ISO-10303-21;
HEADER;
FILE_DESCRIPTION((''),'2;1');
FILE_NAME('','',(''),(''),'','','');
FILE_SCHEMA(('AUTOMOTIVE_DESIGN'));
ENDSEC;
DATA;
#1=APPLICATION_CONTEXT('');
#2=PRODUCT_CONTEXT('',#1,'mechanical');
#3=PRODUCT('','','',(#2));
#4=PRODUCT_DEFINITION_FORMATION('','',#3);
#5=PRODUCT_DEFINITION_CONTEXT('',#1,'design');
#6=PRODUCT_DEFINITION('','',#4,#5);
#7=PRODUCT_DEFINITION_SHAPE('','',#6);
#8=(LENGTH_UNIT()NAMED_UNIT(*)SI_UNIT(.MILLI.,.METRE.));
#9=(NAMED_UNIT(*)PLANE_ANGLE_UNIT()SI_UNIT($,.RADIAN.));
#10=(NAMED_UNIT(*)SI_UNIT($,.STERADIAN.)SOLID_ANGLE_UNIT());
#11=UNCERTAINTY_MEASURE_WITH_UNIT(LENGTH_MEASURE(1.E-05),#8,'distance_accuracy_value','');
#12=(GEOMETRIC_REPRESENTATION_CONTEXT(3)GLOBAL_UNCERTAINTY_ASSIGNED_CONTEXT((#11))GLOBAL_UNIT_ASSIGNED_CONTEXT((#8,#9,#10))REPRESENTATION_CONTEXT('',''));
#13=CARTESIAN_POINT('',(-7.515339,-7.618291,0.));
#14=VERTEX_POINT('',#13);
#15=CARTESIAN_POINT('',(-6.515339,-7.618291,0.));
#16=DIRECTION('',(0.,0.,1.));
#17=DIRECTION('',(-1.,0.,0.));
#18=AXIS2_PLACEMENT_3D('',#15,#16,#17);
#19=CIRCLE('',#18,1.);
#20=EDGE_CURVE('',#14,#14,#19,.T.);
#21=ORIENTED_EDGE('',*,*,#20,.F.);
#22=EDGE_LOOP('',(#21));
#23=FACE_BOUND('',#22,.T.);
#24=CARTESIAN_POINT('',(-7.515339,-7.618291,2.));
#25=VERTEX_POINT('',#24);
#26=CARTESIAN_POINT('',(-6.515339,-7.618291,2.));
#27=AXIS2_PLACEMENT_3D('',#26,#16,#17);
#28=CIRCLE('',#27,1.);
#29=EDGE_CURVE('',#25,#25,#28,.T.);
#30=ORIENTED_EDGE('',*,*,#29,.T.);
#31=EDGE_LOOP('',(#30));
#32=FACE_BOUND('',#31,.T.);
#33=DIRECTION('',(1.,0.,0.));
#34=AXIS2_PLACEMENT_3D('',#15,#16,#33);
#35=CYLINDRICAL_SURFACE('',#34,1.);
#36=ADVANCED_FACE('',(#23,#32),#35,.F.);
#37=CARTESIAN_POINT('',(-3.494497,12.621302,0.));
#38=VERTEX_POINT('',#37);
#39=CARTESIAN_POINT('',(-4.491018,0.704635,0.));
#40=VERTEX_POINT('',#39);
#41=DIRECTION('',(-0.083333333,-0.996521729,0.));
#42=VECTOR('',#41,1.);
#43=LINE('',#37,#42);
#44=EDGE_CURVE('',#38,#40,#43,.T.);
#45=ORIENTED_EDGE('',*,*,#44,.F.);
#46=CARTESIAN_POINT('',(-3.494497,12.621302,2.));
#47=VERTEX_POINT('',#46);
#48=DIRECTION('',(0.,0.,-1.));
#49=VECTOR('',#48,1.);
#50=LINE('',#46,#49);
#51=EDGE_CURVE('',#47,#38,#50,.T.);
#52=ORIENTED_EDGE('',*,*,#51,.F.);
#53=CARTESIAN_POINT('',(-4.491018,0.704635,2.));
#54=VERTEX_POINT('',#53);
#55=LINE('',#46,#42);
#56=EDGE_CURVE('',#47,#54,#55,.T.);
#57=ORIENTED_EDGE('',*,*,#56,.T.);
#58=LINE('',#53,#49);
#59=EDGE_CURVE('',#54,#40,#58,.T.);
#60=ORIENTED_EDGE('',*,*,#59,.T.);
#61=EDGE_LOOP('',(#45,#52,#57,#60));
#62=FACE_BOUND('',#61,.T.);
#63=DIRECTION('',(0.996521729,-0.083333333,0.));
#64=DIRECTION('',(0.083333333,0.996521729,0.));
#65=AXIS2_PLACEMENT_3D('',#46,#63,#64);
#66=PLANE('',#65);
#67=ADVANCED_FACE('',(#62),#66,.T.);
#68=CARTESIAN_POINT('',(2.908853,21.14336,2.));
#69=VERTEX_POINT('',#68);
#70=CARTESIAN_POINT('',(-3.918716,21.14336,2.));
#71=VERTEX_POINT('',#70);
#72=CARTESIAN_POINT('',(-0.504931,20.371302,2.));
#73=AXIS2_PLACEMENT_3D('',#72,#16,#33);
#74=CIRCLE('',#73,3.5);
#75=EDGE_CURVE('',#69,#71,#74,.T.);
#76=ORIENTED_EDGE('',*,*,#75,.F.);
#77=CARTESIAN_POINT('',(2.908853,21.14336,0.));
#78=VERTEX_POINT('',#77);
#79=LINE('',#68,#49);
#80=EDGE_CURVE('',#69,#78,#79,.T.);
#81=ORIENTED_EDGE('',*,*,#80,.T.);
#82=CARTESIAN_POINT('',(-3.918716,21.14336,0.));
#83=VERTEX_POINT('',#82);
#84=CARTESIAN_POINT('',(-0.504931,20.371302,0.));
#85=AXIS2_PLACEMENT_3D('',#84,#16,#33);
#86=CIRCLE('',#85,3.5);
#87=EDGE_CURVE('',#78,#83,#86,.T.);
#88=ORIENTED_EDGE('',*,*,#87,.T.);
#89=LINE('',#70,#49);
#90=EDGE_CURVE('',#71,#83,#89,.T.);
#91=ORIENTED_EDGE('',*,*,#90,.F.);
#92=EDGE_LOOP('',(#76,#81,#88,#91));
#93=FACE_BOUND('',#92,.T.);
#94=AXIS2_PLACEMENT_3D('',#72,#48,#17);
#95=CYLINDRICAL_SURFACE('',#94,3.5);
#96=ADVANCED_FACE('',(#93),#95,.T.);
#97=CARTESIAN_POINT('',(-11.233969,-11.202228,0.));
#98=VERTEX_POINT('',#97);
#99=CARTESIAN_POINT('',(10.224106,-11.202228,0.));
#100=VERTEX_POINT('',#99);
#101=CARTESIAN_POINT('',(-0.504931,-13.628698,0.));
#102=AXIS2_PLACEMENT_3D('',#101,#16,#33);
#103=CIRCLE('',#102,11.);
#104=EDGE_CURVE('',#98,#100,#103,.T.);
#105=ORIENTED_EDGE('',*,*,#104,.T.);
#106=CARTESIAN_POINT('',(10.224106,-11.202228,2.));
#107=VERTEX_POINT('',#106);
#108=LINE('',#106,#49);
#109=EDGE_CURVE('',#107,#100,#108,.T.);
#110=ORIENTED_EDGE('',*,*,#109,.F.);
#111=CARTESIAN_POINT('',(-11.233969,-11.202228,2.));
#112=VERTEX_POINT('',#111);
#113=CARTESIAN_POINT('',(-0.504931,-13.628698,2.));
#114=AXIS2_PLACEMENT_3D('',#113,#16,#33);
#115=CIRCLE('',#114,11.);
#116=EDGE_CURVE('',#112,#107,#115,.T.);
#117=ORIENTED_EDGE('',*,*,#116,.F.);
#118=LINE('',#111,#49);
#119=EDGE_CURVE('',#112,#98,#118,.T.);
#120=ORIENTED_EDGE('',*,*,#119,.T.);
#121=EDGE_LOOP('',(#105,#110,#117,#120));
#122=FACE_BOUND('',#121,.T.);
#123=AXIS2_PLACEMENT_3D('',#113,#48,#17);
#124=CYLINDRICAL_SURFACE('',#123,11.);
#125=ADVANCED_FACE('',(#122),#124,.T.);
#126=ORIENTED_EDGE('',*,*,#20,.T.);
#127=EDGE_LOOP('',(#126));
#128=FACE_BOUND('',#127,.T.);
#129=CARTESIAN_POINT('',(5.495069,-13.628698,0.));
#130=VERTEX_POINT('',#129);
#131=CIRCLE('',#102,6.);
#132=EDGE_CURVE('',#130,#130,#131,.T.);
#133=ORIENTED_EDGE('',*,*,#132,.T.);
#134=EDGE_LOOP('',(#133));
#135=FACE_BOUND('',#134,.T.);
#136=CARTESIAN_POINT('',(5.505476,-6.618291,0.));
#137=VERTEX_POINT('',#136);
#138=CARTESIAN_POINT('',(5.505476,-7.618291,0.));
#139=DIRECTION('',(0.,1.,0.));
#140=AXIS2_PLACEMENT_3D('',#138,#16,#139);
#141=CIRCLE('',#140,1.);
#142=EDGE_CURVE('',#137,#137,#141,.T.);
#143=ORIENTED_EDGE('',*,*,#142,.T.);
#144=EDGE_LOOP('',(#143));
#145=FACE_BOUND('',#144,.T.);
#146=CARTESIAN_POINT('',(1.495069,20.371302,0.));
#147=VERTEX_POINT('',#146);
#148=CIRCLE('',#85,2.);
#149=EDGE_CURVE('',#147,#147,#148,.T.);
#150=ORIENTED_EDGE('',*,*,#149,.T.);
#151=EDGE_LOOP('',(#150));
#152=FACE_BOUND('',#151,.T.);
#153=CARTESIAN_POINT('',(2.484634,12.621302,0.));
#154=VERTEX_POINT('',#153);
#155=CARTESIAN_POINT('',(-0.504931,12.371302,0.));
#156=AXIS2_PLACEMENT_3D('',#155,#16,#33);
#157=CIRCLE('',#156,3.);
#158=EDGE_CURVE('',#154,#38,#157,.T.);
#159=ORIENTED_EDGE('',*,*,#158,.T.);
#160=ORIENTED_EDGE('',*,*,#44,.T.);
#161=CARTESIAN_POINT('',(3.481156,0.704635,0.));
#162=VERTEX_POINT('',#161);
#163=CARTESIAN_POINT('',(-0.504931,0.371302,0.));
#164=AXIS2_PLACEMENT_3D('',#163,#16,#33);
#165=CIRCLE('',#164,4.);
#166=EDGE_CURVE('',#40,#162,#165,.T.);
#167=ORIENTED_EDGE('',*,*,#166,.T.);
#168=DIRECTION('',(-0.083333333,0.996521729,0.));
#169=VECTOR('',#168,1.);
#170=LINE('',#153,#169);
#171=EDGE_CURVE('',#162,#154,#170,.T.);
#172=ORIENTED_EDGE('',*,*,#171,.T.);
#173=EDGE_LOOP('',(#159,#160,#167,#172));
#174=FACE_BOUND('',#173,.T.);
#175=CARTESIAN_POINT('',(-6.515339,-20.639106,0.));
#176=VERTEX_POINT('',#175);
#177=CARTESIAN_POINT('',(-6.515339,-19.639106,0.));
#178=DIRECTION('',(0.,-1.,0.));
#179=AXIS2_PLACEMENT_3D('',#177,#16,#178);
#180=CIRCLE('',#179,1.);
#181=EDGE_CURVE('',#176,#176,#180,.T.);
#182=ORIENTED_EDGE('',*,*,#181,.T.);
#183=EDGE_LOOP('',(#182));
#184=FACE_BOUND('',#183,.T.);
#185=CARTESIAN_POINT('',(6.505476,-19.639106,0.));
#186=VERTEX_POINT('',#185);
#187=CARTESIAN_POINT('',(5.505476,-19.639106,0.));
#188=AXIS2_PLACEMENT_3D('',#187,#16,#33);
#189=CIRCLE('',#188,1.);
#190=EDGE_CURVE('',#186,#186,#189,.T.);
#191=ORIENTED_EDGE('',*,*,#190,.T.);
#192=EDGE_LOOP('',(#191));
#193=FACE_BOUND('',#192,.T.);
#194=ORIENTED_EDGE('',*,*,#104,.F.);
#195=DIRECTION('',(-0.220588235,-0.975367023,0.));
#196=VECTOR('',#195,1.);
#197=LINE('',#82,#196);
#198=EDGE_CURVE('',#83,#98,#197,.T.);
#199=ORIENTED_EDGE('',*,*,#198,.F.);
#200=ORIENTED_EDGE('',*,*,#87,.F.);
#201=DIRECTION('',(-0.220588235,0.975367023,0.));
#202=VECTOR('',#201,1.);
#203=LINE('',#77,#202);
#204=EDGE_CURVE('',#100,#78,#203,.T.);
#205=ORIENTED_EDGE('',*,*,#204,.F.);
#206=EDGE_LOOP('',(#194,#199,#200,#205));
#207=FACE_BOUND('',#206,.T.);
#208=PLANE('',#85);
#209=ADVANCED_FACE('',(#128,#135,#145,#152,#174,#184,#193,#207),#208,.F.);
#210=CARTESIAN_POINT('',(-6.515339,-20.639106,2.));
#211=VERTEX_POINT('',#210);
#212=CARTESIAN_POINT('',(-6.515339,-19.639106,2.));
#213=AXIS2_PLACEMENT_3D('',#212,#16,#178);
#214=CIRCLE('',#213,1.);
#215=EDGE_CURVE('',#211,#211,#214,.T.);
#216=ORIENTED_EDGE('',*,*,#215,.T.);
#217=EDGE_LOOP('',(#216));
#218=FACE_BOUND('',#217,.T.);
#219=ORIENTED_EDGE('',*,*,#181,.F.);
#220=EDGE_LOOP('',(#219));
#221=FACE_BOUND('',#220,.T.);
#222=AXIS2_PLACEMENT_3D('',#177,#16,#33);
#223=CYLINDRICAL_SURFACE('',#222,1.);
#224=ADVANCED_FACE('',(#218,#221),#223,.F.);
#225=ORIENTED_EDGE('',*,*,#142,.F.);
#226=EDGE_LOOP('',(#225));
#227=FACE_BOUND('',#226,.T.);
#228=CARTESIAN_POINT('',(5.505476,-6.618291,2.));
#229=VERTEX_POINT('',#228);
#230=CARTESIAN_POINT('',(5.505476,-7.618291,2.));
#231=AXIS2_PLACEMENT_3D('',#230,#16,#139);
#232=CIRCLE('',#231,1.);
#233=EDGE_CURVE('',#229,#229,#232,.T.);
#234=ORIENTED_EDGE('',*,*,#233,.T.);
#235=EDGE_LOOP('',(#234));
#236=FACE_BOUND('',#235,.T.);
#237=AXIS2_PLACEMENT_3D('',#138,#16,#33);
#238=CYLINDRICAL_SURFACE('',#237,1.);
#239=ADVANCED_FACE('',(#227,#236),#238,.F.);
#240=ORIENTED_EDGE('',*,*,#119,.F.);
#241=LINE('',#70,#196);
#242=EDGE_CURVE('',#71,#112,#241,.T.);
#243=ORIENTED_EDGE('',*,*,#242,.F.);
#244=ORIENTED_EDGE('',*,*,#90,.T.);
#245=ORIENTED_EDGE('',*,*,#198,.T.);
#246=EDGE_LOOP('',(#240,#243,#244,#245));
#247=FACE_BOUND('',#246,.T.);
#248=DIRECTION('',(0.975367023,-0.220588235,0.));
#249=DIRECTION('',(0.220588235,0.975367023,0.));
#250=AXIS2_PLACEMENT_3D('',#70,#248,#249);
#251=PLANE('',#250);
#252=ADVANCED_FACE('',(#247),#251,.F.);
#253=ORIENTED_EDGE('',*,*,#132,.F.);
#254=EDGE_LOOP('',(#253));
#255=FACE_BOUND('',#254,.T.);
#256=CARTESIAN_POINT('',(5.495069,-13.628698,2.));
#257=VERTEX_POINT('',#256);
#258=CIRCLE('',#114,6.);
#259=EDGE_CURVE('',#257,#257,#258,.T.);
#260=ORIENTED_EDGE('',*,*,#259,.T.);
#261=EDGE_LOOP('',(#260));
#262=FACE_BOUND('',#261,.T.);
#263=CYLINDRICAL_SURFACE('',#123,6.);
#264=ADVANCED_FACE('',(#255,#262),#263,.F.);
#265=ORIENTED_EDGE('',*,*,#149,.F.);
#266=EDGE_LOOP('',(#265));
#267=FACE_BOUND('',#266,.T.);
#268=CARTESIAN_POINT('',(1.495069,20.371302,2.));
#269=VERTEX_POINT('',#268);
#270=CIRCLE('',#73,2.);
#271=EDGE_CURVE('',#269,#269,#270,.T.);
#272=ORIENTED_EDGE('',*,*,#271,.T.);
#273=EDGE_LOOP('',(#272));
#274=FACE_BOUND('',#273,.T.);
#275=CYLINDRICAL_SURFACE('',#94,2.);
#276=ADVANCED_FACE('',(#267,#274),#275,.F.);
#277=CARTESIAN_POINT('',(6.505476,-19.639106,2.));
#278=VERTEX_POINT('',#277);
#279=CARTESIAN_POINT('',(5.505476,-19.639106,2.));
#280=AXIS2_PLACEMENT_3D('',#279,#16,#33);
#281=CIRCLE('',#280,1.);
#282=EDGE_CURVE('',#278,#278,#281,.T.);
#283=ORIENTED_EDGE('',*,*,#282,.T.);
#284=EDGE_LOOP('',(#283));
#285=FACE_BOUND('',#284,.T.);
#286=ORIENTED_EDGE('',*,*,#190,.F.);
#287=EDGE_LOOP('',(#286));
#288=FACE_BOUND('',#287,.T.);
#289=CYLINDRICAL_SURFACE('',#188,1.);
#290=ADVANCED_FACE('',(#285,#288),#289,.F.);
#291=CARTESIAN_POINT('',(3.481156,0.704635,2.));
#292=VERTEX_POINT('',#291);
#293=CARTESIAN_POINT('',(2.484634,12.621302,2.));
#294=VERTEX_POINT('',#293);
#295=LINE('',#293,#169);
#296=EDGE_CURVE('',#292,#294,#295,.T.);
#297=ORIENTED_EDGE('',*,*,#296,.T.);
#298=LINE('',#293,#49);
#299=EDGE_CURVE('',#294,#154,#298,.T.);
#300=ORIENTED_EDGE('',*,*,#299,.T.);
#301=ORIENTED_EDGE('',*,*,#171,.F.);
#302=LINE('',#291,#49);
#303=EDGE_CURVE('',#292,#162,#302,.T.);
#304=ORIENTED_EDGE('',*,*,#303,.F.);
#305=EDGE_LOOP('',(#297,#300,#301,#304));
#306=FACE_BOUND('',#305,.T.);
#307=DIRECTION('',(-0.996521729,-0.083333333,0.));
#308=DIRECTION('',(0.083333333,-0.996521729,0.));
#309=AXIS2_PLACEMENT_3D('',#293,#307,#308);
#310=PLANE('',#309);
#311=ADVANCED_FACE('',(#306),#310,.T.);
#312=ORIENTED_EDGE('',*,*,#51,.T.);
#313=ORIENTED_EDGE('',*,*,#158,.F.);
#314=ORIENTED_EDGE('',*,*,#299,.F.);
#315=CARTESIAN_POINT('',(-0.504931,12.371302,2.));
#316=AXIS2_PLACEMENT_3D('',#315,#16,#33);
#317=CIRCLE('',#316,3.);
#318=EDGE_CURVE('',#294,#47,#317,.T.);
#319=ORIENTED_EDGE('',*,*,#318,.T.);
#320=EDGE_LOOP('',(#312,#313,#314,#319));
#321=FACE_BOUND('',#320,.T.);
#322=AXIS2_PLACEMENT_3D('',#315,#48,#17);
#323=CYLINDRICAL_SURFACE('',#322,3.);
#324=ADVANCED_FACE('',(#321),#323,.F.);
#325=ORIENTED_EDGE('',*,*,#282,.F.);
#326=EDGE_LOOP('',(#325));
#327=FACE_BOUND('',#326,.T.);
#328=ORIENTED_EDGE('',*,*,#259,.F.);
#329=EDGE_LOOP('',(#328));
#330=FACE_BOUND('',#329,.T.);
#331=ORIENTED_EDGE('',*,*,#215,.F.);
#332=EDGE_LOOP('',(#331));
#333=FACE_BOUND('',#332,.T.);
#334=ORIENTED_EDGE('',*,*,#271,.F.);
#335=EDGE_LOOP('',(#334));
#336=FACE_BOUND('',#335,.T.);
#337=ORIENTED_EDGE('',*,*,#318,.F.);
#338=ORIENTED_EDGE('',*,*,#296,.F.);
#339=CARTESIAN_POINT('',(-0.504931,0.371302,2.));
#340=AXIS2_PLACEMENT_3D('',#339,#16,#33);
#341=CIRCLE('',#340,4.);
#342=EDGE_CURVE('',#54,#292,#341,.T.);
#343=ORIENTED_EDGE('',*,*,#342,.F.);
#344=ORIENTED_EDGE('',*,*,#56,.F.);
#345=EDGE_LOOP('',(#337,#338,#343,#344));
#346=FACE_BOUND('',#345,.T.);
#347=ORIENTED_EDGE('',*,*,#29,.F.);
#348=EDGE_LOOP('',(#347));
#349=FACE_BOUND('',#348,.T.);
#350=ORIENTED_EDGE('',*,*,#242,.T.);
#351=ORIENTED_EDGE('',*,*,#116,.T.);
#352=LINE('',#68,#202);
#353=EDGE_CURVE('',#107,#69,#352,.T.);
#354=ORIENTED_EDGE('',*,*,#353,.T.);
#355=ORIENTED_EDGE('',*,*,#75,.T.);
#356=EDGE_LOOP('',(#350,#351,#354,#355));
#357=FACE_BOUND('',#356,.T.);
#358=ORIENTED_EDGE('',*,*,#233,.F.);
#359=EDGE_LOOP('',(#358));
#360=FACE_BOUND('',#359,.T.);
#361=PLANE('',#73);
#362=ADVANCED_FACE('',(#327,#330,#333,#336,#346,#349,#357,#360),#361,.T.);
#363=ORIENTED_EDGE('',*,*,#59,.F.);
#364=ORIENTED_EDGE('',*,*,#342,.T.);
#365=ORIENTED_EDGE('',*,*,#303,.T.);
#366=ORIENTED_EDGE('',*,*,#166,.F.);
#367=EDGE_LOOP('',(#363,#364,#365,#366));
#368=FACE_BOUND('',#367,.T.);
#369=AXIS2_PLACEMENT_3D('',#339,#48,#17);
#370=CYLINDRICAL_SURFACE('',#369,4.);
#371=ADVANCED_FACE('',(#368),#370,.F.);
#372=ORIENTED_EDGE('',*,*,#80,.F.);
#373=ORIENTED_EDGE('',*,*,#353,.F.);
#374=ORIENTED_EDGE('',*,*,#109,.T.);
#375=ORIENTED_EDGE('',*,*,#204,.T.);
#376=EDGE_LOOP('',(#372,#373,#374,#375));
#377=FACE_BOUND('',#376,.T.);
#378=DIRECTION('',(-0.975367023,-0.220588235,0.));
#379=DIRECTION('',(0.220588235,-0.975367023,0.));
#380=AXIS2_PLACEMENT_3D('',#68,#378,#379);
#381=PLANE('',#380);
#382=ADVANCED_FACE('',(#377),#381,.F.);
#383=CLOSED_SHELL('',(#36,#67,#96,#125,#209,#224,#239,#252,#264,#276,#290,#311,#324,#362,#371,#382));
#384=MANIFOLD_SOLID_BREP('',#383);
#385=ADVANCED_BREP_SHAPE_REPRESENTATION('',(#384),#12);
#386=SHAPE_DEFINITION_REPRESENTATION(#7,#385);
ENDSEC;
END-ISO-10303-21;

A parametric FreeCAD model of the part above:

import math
import FreeCAD as App
import Part
import Sketcher
from FreeCAD import Vector
Q = App.Units.Quantity

doc = App.newDocument("Part")
params = doc.addObject("Spreadsheet::Sheet", "Params")
for row, (alias, value) in enumerate([
    ("sketch1_diameter", "12 mm"),
    ("sketch1_diameter2", "4 mm"),
    ("sketch1_radius", "11 mm"),
    ("sketch1_radius2", "3 mm"),
    ("sketch1_radius3", "4 mm"),
    ("pad1_length", "2 mm"),
    ("sketch2_diameter", "2 mm"),
], start=1):
    params.set(f"A{row}", alias)
    params.set(f"B{row}", "=" + value)
    params.setAlias(f"B{row}", alias)

body = doc.addObject("PartDesign::Body", "Body")

sketch1 = body.newObject("Sketcher::SketchObject", "Sketch")
sketch1.AttachmentSupport = (doc.getObject("XY_Plane"), [""])
sketch1.MapMode = "FlatFace"
sketch1.addGeometry(Part.LineSegment(Vector(-3.9, 21.1, 0), Vector(-11.2, -11.2, 0)), False)
sketch1.addGeometry(Part.ArcOfCircle(Part.Circle(Vector(-0.5, -13.6, 0), Vector(0, 0, 1), 11), math.radians(167), math.radians(373)), False)
sketch1.addGeometry(Part.LineSegment(Vector(10.2, -11.2, 0), Vector(2.9, 21.1, 0)), False)
sketch1.addGeometry(Part.ArcOfCircle(Part.Circle(Vector(-0.5, 20.4, 0), Vector(0, 0, 1), 3.5), math.radians(13), math.radians(167)), False)
sketch1.addGeometry(Part.Circle(Vector(-0.5, -13.6, 0), Vector(0, 0, 1), 6), False)
sketch1.addGeometry(Part.LineSegment(Vector(-4.5, 0.7, 0), Vector(-3.5, 12.6, 0)), False)
sketch1.addGeometry(Part.ArcOfCircle(Part.Circle(Vector(-0.5, 12.4, 0), Vector(0, 0, 1), 3), math.radians(5), math.radians(175)), False)
sketch1.addGeometry(Part.LineSegment(Vector(2.5, 12.6, 0), Vector(3.5, 0.7, 0)), False)
sketch1.addGeometry(Part.ArcOfCircle(Part.Circle(Vector(-0.5, 0.4, 0), Vector(0, 0, 1), 4), math.radians(175), math.radians(365)), False)
sketch1.addGeometry(Part.Circle(Vector(-0.5, 20.4, 0), Vector(0, 0, 1), 2), False)
sketch1.addConstraint(Sketcher.Constraint("Tangent", 0, 2, 1, 1))
sketch1.addConstraint(Sketcher.Constraint("Tangent", 1, 2, 2, 1))
sketch1.addConstraint(Sketcher.Constraint("Tangent", 2, 2, 3, 1))
sketch1.addConstraint(Sketcher.Constraint("Tangent", 3, 2, 0, 1))
sketch1.addConstraint(Sketcher.Constraint("Tangent", 5, 2, 6, 2))
sketch1.addConstraint(Sketcher.Constraint("Tangent", 6, 1, 7, 1))
sketch1.addConstraint(Sketcher.Constraint("Tangent", 7, 2, 8, 2))
sketch1.addConstraint(Sketcher.Constraint("Tangent", 8, 1, 5, 1))
sketch1.addConstraint(Sketcher.Constraint("Coincident", 4, 3, 1, 3))
sketch1.addConstraint(Sketcher.Constraint("Coincident", 9, 3, 3, 3))
sketch1.addConstraint(Sketcher.Constraint("Horizontal", 0, 2, 1, 2))
sketch1.addConstraint(Sketcher.Constraint("Horizontal", 5, 2, 6, 1))
sketch1.addConstraint(Sketcher.Constraint("Vertical", 4, 3, 6, 3))
sketch1.addConstraint(Sketcher.Constraint("Diameter", 4, Q("12 mm")))
sketch1.addConstraint(Sketcher.Constraint("Diameter", 9, Q("4 mm")))
sketch1.addConstraint(Sketcher.Constraint("Radius", 1, Q("11 mm")))
sketch1.addConstraint(Sketcher.Constraint("Radius", 6, Q("3 mm")))
sketch1.addConstraint(Sketcher.Constraint("Radius", 8, Q("4 mm")))
sketch1.addConstraint(Sketcher.Constraint("Radius", 3, Q("3.5 mm")))
sketch1.addConstraint(Sketcher.Constraint("DistanceY", 1, 3, 3, 3, Q("34 mm")))
sketch1.addConstraint(Sketcher.Constraint("DistanceY", 6, 3, 3, 3, Q("8 mm")))
sketch1.addConstraint(Sketcher.Constraint("DistanceY", 8, 3, 6, 3, Q("12 mm")))
sketch1.addConstraint(Sketcher.Constraint("DistanceY", 1, 3, -1, 1, Q("13.628698 mm")))
sketch1.addConstraint(Sketcher.Constraint("DistanceX", 1, 3, -1, 1, Q("0.504931 mm")))
sketch1.setExpression("Constraints[13]", "Params.sketch1_diameter")
sketch1.setExpression("Constraints[14]", "Params.sketch1_diameter2")
sketch1.setExpression("Constraints[15]", "Params.sketch1_radius")
sketch1.setExpression("Constraints[16]", "Params.sketch1_radius2")
sketch1.setExpression("Constraints[17]", "Params.sketch1_radius3")
pad1 = body.newObject("PartDesign::Pad", "Pad")
pad1.Profile = sketch1
pad1.setExpression("Length", "Params.pad1_length")

sketch2 = body.newObject("Sketcher::SketchObject", "Sketch001")
sketch2.AttachmentSupport = (doc.getObject("XY_Plane"), [""])
sketch2.MapMode = "FlatFace"
sketch2.AttachmentOffset = App.Placement(Vector(0, 0, 2), App.Rotation())
sketch2.addGeometry(Part.Circle(Vector(5.5, -19.6, 0), Vector(0, 0, 1), 1), False)
sketch2.addConstraint(Sketcher.Constraint("Diameter", 0, Q("2 mm")))
sketch2.addConstraint(Sketcher.Constraint("DistanceX", -1, 1, 0, 3, Q("5.505476 mm")))
sketch2.addConstraint(Sketcher.Constraint("DistanceY", 0, 3, -1, 1, Q("19.639106 mm")))
sketch2.setExpression("Constraints[0]", "Params.sketch2_diameter")
pocket1 = body.newObject("PartDesign::Pocket", "Pocket")
pocket1.Profile = sketch2
pocket1.Type = "ThroughAll"
doc.recompute()

datumline = body.newObject("PartDesign::Line", "DatumLine")
datumline.Placement = App.Placement(Vector(-0.504931, -13.628698, 0), App.Rotation(Vector(0, 0, 1), Vector(0, 0, 1)))
polarpattern = body.newObject("PartDesign::PolarPattern", "PolarPattern")
polarpattern.Originals = [pocket1]
polarpattern.Axis = (datumline, [""])
polarpattern.Angle = 360
polarpattern.Occurrences = 4
body.Tip = polarpattern

doc.recompute()
